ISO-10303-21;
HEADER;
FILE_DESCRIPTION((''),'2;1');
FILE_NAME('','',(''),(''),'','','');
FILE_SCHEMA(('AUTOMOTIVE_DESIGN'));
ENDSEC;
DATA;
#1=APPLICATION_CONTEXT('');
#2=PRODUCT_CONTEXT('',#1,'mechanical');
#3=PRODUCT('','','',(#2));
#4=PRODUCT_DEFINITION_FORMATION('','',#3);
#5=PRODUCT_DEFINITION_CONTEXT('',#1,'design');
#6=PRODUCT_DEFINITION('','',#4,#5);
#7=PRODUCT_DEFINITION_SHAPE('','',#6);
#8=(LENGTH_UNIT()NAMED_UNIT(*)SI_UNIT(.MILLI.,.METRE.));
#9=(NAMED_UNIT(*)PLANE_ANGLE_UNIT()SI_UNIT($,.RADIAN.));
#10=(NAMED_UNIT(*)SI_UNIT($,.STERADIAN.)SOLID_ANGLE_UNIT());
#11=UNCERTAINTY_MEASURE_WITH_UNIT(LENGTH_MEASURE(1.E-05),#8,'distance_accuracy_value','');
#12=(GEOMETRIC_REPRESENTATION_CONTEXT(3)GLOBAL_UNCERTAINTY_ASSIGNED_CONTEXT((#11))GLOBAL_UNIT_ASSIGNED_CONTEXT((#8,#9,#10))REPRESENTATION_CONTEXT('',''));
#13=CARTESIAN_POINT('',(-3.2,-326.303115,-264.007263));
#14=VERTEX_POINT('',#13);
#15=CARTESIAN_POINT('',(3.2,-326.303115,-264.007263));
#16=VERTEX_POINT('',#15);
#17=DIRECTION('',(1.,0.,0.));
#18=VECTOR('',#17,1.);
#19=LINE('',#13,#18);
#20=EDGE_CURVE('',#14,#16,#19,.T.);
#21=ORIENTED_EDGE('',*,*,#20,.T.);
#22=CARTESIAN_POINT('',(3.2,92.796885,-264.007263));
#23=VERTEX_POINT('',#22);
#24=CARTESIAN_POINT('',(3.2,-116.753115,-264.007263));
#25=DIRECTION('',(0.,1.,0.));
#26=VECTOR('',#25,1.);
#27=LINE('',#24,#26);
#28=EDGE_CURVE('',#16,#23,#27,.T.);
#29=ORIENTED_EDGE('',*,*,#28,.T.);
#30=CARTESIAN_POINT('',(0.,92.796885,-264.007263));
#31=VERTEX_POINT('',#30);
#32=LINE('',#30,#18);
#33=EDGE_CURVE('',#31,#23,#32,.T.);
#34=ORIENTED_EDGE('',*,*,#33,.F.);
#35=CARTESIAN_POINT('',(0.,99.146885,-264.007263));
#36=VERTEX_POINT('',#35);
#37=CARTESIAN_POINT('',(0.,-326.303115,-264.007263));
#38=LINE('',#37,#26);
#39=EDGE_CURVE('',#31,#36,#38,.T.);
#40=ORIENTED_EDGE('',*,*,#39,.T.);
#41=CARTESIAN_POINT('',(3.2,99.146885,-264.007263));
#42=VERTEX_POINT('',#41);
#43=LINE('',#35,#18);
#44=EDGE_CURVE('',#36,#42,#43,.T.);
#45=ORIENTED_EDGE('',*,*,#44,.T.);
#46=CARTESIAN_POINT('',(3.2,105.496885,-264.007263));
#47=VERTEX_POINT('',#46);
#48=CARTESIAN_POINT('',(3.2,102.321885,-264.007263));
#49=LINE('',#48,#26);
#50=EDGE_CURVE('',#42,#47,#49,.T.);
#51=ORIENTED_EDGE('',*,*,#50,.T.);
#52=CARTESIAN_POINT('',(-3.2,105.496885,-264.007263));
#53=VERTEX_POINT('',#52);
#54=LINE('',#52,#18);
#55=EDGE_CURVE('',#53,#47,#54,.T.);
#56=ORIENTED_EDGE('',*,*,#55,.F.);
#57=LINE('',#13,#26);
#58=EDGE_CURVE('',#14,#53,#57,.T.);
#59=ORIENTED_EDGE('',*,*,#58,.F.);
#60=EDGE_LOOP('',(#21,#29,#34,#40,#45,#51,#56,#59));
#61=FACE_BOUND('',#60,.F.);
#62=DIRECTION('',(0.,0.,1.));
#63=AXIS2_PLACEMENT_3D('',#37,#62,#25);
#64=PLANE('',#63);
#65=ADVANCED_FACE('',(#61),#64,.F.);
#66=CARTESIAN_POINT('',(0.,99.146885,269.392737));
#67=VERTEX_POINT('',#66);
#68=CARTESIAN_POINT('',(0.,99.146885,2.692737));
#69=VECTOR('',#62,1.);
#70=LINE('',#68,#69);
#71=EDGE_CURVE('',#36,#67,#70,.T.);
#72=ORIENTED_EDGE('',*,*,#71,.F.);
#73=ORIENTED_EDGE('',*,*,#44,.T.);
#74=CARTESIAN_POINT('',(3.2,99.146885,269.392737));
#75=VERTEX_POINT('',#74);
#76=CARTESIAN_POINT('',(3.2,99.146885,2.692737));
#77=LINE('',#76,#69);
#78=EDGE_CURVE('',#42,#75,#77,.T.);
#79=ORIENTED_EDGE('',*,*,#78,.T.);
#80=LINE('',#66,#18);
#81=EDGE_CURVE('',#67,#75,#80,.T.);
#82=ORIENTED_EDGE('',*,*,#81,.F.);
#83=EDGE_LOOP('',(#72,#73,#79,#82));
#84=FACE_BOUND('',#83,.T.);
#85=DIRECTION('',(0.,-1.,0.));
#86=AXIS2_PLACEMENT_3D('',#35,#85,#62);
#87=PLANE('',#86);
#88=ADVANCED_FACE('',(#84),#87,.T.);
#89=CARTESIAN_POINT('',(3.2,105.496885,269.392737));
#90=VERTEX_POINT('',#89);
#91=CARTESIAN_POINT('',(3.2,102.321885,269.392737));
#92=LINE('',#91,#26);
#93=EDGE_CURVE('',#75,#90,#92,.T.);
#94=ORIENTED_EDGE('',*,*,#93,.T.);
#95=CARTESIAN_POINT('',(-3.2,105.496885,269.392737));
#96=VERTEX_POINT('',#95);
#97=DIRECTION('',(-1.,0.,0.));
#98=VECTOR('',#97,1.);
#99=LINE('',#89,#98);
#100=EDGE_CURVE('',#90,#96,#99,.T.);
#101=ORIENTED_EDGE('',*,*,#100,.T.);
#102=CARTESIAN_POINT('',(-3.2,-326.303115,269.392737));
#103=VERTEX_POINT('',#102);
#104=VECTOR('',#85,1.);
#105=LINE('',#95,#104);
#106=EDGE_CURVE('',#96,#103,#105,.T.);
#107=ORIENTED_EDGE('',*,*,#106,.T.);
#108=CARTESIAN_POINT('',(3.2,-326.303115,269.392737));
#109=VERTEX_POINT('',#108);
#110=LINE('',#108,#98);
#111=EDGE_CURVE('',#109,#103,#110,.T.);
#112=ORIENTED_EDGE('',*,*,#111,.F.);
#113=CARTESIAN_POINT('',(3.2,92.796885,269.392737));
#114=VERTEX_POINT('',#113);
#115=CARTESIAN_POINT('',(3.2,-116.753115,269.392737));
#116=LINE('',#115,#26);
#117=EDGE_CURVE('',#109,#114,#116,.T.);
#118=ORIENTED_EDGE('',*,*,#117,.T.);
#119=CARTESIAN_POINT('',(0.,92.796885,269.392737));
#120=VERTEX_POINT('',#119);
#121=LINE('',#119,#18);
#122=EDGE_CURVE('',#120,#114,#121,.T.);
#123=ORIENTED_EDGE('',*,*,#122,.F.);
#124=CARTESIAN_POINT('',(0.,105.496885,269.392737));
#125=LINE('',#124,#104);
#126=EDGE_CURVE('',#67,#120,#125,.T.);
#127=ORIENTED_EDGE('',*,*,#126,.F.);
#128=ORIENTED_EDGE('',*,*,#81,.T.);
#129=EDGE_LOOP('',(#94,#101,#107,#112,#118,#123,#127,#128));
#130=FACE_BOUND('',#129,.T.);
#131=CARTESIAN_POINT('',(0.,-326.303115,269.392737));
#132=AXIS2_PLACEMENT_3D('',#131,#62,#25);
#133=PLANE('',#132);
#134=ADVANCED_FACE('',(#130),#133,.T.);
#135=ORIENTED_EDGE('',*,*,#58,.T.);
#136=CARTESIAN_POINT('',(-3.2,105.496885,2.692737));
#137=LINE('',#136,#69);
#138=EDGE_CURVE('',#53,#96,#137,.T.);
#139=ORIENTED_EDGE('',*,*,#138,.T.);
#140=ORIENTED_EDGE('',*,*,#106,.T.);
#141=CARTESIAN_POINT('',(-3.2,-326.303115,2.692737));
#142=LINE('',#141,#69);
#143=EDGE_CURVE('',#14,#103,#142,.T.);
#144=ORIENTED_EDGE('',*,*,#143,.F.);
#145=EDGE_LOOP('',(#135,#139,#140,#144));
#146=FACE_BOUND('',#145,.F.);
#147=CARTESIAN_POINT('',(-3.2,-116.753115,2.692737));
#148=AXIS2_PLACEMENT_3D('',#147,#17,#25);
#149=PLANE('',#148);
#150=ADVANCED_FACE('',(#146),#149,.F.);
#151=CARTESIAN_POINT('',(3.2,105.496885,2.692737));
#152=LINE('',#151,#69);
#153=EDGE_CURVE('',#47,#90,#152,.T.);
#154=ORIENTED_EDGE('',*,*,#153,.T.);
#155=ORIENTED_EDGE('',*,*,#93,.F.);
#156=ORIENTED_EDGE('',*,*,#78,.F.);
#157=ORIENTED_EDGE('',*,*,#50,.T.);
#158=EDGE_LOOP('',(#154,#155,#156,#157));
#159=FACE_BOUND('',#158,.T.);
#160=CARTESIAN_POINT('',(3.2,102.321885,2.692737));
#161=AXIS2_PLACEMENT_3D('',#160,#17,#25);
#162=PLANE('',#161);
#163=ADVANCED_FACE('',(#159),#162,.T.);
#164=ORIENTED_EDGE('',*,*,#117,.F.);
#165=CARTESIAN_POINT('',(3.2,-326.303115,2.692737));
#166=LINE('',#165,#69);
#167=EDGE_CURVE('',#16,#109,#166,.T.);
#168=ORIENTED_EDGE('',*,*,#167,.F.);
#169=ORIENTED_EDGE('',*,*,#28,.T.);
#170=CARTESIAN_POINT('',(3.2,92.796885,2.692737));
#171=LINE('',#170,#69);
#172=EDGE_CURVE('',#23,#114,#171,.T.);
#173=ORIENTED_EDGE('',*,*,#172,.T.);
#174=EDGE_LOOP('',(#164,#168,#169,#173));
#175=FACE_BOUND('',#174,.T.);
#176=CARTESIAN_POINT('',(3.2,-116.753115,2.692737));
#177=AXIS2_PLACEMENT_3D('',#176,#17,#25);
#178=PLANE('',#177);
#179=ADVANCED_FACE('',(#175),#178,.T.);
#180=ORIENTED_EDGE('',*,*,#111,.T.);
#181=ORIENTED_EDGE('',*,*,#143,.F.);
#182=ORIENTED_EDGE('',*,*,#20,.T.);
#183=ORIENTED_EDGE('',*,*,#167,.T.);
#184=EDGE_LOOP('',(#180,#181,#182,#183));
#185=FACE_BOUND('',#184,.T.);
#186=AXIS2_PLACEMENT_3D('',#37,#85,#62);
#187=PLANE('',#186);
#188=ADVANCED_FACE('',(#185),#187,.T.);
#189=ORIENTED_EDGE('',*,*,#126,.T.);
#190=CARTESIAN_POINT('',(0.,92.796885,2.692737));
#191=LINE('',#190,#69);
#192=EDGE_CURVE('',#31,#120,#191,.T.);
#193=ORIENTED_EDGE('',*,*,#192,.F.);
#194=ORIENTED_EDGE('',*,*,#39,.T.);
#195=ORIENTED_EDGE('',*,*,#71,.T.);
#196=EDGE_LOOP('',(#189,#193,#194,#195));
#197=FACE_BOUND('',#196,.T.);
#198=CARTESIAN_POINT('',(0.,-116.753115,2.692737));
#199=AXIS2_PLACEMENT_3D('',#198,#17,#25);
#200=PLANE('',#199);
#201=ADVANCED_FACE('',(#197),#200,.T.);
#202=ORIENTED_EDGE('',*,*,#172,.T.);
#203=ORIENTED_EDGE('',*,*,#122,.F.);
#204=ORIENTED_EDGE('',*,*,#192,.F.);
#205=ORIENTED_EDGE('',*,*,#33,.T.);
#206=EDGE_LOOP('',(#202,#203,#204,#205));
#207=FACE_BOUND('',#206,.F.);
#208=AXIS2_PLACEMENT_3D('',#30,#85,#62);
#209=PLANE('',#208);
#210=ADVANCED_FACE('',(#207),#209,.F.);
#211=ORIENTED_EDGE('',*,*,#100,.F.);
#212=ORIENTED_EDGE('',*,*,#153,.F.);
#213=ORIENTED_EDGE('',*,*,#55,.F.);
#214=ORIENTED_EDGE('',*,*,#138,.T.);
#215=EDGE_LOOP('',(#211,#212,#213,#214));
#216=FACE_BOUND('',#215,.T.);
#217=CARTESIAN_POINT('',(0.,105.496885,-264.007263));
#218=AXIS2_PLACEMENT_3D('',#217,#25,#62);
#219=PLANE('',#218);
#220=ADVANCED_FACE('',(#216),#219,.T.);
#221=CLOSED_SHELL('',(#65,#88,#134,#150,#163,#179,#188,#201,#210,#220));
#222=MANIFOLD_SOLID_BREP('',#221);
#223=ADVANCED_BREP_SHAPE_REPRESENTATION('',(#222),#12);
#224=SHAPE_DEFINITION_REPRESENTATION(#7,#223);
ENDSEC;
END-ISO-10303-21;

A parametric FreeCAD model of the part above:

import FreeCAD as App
import Part
import Sketcher
Q = App.Units.Quantity


def add_polygon(sketch, points):
    """Adds a closed chain of lines whose ends are joined by coincident constraints."""
    first, n = sketch.GeometryCount, len(points)
    for a, b in zip(points, points[1:] + points[:1]):
        sketch.addGeometry(Part.LineSegment(App.Vector(*a, 0), App.Vector(*b, 0)), False)
    for i in range(n):
        sketch.addConstraint(Sketcher.Constraint("Coincident", first + i, 2, first + (i + 1) % n, 1))

doc = App.newDocument("Part")
params = doc.addObject("Spreadsheet::Sheet", "Params")
for row, (alias, value) in enumerate([
    ("sketch1_width", "17 in"),
    ("sketch1_height", "21 in"),
    ("pad1_length", "3.2 mm"),
    ("sketch2_height", "21 in"),
    ("sketch2_width", "16.5 in"),
    ("sketch2_width2", "0.25 in"),
    ("pad2_length", "3.2 mm"),
], start=1):
    params.set(f"A{row}", alias)
    params.set(f"B{row}", "=" + value)
    params.setAlias(f"B{row}", alias)

body = doc.addObject("PartDesign::Body", "Body")

sketch1 = body.newObject("Sketcher::SketchObject", "Sketch")
sketch1.AttachmentSupport = (doc.getObject("YZ_Plane"), [""])
sketch1.MapMode = "FlatFace"
add_polygon(sketch1, [(-326, 269), (-326, -264), (105, -264), (105, 269)])
sketch1.addConstraint([
    Sketcher.Constraint("Vertical", 0),
    Sketcher.Constraint("Horizontal", 1),
    Sketcher.Constraint("Vertical", 2),
    Sketcher.Constraint("Horizontal", 3),
    Sketcher.Constraint("DistanceX", 1, 1, 1, 2, Q("17 in")),
    Sketcher.Constraint("DistanceY", 0, 2, 0, 1, Q("21 in")),
    Sketcher.Constraint("DistanceX", 0, 2, -1, 1, 326.303115),
    Sketcher.Constraint("DistanceY", 0, 2, -1, 1, 264.007263),
])
sketch1.setExpression("Constraints[8]", "Params.sketch1_width")
sketch1.setExpression("Constraints[9]", "Params.sketch1_height")
pad1 = body.newObject("PartDesign::Pad", "Pad")
pad1.Profile = sketch1
pad1.setExpression("Length", "Params.pad1_length")
pad1.Reversed = True

sketch2 = body.newObject("Sketcher::SketchObject", "Sketch001")
sketch2.AttachmentSupport = (doc.getObject("YZ_Plane"), [""])
sketch2.MapMode = "FlatFace"
add_polygon(sketch2, [(-326, 269), (-326, -264), (93, -264), (93, 269)])
add_polygon(sketch2, [(99, 269), (99, -264), (105, -264), (105, 269)])
sketch2.addConstraint([
    Sketcher.Constraint("Vertical", 0),
    Sketcher.Constraint("Horizontal", 1),
    Sketcher.Constraint("Vertical", 2),
    Sketcher.Constraint("Horizontal", 3),
    Sketcher.Constraint("Vertical", 4),
    Sketcher.Constraint("Horizontal", 5),
    Sketcher.Constraint("Vertical", 6),
    Sketcher.Constraint("Horizontal", 7),
    Sketcher.Constraint("Horizontal", 1, 2, 4, 2),
    Sketcher.Constraint("Horizontal", 3, 2, 6, 2),
    Sketcher.Constraint("DistanceY", 0, 2, 0, 1, Q("21 in")),
    Sketcher.Constraint("DistanceX", 1, 1, 1, 2, Q("16.5 in")),
    Sketcher.Constraint("DistanceX", 0, 2, 5, 2, Q("17 in")),
    Sketcher.Constraint("DistanceX", 5, 1, 5, 2, Q("0.25 in")),
    Sketcher.Constraint("DistanceX", 0, 2, -1, 1, 326.303115),
    Sketcher.Constraint("DistanceY", 0, 2, -1, 1, 264.007263),
])
sketch2.setExpression("Constraints[18]", "Params.sketch2_height")
sketch2.setExpression("Constraints[19]", "Params.sketch2_width")
sketch2.setExpression("Constraints[21]", "Params.sketch2_width2")
pad2 = body.newObject("PartDesign::Pad", "Pad001")
pad2.Profile = sketch2
pad2.setExpression("Length", "Params.pad2_length")

doc.recompute()
